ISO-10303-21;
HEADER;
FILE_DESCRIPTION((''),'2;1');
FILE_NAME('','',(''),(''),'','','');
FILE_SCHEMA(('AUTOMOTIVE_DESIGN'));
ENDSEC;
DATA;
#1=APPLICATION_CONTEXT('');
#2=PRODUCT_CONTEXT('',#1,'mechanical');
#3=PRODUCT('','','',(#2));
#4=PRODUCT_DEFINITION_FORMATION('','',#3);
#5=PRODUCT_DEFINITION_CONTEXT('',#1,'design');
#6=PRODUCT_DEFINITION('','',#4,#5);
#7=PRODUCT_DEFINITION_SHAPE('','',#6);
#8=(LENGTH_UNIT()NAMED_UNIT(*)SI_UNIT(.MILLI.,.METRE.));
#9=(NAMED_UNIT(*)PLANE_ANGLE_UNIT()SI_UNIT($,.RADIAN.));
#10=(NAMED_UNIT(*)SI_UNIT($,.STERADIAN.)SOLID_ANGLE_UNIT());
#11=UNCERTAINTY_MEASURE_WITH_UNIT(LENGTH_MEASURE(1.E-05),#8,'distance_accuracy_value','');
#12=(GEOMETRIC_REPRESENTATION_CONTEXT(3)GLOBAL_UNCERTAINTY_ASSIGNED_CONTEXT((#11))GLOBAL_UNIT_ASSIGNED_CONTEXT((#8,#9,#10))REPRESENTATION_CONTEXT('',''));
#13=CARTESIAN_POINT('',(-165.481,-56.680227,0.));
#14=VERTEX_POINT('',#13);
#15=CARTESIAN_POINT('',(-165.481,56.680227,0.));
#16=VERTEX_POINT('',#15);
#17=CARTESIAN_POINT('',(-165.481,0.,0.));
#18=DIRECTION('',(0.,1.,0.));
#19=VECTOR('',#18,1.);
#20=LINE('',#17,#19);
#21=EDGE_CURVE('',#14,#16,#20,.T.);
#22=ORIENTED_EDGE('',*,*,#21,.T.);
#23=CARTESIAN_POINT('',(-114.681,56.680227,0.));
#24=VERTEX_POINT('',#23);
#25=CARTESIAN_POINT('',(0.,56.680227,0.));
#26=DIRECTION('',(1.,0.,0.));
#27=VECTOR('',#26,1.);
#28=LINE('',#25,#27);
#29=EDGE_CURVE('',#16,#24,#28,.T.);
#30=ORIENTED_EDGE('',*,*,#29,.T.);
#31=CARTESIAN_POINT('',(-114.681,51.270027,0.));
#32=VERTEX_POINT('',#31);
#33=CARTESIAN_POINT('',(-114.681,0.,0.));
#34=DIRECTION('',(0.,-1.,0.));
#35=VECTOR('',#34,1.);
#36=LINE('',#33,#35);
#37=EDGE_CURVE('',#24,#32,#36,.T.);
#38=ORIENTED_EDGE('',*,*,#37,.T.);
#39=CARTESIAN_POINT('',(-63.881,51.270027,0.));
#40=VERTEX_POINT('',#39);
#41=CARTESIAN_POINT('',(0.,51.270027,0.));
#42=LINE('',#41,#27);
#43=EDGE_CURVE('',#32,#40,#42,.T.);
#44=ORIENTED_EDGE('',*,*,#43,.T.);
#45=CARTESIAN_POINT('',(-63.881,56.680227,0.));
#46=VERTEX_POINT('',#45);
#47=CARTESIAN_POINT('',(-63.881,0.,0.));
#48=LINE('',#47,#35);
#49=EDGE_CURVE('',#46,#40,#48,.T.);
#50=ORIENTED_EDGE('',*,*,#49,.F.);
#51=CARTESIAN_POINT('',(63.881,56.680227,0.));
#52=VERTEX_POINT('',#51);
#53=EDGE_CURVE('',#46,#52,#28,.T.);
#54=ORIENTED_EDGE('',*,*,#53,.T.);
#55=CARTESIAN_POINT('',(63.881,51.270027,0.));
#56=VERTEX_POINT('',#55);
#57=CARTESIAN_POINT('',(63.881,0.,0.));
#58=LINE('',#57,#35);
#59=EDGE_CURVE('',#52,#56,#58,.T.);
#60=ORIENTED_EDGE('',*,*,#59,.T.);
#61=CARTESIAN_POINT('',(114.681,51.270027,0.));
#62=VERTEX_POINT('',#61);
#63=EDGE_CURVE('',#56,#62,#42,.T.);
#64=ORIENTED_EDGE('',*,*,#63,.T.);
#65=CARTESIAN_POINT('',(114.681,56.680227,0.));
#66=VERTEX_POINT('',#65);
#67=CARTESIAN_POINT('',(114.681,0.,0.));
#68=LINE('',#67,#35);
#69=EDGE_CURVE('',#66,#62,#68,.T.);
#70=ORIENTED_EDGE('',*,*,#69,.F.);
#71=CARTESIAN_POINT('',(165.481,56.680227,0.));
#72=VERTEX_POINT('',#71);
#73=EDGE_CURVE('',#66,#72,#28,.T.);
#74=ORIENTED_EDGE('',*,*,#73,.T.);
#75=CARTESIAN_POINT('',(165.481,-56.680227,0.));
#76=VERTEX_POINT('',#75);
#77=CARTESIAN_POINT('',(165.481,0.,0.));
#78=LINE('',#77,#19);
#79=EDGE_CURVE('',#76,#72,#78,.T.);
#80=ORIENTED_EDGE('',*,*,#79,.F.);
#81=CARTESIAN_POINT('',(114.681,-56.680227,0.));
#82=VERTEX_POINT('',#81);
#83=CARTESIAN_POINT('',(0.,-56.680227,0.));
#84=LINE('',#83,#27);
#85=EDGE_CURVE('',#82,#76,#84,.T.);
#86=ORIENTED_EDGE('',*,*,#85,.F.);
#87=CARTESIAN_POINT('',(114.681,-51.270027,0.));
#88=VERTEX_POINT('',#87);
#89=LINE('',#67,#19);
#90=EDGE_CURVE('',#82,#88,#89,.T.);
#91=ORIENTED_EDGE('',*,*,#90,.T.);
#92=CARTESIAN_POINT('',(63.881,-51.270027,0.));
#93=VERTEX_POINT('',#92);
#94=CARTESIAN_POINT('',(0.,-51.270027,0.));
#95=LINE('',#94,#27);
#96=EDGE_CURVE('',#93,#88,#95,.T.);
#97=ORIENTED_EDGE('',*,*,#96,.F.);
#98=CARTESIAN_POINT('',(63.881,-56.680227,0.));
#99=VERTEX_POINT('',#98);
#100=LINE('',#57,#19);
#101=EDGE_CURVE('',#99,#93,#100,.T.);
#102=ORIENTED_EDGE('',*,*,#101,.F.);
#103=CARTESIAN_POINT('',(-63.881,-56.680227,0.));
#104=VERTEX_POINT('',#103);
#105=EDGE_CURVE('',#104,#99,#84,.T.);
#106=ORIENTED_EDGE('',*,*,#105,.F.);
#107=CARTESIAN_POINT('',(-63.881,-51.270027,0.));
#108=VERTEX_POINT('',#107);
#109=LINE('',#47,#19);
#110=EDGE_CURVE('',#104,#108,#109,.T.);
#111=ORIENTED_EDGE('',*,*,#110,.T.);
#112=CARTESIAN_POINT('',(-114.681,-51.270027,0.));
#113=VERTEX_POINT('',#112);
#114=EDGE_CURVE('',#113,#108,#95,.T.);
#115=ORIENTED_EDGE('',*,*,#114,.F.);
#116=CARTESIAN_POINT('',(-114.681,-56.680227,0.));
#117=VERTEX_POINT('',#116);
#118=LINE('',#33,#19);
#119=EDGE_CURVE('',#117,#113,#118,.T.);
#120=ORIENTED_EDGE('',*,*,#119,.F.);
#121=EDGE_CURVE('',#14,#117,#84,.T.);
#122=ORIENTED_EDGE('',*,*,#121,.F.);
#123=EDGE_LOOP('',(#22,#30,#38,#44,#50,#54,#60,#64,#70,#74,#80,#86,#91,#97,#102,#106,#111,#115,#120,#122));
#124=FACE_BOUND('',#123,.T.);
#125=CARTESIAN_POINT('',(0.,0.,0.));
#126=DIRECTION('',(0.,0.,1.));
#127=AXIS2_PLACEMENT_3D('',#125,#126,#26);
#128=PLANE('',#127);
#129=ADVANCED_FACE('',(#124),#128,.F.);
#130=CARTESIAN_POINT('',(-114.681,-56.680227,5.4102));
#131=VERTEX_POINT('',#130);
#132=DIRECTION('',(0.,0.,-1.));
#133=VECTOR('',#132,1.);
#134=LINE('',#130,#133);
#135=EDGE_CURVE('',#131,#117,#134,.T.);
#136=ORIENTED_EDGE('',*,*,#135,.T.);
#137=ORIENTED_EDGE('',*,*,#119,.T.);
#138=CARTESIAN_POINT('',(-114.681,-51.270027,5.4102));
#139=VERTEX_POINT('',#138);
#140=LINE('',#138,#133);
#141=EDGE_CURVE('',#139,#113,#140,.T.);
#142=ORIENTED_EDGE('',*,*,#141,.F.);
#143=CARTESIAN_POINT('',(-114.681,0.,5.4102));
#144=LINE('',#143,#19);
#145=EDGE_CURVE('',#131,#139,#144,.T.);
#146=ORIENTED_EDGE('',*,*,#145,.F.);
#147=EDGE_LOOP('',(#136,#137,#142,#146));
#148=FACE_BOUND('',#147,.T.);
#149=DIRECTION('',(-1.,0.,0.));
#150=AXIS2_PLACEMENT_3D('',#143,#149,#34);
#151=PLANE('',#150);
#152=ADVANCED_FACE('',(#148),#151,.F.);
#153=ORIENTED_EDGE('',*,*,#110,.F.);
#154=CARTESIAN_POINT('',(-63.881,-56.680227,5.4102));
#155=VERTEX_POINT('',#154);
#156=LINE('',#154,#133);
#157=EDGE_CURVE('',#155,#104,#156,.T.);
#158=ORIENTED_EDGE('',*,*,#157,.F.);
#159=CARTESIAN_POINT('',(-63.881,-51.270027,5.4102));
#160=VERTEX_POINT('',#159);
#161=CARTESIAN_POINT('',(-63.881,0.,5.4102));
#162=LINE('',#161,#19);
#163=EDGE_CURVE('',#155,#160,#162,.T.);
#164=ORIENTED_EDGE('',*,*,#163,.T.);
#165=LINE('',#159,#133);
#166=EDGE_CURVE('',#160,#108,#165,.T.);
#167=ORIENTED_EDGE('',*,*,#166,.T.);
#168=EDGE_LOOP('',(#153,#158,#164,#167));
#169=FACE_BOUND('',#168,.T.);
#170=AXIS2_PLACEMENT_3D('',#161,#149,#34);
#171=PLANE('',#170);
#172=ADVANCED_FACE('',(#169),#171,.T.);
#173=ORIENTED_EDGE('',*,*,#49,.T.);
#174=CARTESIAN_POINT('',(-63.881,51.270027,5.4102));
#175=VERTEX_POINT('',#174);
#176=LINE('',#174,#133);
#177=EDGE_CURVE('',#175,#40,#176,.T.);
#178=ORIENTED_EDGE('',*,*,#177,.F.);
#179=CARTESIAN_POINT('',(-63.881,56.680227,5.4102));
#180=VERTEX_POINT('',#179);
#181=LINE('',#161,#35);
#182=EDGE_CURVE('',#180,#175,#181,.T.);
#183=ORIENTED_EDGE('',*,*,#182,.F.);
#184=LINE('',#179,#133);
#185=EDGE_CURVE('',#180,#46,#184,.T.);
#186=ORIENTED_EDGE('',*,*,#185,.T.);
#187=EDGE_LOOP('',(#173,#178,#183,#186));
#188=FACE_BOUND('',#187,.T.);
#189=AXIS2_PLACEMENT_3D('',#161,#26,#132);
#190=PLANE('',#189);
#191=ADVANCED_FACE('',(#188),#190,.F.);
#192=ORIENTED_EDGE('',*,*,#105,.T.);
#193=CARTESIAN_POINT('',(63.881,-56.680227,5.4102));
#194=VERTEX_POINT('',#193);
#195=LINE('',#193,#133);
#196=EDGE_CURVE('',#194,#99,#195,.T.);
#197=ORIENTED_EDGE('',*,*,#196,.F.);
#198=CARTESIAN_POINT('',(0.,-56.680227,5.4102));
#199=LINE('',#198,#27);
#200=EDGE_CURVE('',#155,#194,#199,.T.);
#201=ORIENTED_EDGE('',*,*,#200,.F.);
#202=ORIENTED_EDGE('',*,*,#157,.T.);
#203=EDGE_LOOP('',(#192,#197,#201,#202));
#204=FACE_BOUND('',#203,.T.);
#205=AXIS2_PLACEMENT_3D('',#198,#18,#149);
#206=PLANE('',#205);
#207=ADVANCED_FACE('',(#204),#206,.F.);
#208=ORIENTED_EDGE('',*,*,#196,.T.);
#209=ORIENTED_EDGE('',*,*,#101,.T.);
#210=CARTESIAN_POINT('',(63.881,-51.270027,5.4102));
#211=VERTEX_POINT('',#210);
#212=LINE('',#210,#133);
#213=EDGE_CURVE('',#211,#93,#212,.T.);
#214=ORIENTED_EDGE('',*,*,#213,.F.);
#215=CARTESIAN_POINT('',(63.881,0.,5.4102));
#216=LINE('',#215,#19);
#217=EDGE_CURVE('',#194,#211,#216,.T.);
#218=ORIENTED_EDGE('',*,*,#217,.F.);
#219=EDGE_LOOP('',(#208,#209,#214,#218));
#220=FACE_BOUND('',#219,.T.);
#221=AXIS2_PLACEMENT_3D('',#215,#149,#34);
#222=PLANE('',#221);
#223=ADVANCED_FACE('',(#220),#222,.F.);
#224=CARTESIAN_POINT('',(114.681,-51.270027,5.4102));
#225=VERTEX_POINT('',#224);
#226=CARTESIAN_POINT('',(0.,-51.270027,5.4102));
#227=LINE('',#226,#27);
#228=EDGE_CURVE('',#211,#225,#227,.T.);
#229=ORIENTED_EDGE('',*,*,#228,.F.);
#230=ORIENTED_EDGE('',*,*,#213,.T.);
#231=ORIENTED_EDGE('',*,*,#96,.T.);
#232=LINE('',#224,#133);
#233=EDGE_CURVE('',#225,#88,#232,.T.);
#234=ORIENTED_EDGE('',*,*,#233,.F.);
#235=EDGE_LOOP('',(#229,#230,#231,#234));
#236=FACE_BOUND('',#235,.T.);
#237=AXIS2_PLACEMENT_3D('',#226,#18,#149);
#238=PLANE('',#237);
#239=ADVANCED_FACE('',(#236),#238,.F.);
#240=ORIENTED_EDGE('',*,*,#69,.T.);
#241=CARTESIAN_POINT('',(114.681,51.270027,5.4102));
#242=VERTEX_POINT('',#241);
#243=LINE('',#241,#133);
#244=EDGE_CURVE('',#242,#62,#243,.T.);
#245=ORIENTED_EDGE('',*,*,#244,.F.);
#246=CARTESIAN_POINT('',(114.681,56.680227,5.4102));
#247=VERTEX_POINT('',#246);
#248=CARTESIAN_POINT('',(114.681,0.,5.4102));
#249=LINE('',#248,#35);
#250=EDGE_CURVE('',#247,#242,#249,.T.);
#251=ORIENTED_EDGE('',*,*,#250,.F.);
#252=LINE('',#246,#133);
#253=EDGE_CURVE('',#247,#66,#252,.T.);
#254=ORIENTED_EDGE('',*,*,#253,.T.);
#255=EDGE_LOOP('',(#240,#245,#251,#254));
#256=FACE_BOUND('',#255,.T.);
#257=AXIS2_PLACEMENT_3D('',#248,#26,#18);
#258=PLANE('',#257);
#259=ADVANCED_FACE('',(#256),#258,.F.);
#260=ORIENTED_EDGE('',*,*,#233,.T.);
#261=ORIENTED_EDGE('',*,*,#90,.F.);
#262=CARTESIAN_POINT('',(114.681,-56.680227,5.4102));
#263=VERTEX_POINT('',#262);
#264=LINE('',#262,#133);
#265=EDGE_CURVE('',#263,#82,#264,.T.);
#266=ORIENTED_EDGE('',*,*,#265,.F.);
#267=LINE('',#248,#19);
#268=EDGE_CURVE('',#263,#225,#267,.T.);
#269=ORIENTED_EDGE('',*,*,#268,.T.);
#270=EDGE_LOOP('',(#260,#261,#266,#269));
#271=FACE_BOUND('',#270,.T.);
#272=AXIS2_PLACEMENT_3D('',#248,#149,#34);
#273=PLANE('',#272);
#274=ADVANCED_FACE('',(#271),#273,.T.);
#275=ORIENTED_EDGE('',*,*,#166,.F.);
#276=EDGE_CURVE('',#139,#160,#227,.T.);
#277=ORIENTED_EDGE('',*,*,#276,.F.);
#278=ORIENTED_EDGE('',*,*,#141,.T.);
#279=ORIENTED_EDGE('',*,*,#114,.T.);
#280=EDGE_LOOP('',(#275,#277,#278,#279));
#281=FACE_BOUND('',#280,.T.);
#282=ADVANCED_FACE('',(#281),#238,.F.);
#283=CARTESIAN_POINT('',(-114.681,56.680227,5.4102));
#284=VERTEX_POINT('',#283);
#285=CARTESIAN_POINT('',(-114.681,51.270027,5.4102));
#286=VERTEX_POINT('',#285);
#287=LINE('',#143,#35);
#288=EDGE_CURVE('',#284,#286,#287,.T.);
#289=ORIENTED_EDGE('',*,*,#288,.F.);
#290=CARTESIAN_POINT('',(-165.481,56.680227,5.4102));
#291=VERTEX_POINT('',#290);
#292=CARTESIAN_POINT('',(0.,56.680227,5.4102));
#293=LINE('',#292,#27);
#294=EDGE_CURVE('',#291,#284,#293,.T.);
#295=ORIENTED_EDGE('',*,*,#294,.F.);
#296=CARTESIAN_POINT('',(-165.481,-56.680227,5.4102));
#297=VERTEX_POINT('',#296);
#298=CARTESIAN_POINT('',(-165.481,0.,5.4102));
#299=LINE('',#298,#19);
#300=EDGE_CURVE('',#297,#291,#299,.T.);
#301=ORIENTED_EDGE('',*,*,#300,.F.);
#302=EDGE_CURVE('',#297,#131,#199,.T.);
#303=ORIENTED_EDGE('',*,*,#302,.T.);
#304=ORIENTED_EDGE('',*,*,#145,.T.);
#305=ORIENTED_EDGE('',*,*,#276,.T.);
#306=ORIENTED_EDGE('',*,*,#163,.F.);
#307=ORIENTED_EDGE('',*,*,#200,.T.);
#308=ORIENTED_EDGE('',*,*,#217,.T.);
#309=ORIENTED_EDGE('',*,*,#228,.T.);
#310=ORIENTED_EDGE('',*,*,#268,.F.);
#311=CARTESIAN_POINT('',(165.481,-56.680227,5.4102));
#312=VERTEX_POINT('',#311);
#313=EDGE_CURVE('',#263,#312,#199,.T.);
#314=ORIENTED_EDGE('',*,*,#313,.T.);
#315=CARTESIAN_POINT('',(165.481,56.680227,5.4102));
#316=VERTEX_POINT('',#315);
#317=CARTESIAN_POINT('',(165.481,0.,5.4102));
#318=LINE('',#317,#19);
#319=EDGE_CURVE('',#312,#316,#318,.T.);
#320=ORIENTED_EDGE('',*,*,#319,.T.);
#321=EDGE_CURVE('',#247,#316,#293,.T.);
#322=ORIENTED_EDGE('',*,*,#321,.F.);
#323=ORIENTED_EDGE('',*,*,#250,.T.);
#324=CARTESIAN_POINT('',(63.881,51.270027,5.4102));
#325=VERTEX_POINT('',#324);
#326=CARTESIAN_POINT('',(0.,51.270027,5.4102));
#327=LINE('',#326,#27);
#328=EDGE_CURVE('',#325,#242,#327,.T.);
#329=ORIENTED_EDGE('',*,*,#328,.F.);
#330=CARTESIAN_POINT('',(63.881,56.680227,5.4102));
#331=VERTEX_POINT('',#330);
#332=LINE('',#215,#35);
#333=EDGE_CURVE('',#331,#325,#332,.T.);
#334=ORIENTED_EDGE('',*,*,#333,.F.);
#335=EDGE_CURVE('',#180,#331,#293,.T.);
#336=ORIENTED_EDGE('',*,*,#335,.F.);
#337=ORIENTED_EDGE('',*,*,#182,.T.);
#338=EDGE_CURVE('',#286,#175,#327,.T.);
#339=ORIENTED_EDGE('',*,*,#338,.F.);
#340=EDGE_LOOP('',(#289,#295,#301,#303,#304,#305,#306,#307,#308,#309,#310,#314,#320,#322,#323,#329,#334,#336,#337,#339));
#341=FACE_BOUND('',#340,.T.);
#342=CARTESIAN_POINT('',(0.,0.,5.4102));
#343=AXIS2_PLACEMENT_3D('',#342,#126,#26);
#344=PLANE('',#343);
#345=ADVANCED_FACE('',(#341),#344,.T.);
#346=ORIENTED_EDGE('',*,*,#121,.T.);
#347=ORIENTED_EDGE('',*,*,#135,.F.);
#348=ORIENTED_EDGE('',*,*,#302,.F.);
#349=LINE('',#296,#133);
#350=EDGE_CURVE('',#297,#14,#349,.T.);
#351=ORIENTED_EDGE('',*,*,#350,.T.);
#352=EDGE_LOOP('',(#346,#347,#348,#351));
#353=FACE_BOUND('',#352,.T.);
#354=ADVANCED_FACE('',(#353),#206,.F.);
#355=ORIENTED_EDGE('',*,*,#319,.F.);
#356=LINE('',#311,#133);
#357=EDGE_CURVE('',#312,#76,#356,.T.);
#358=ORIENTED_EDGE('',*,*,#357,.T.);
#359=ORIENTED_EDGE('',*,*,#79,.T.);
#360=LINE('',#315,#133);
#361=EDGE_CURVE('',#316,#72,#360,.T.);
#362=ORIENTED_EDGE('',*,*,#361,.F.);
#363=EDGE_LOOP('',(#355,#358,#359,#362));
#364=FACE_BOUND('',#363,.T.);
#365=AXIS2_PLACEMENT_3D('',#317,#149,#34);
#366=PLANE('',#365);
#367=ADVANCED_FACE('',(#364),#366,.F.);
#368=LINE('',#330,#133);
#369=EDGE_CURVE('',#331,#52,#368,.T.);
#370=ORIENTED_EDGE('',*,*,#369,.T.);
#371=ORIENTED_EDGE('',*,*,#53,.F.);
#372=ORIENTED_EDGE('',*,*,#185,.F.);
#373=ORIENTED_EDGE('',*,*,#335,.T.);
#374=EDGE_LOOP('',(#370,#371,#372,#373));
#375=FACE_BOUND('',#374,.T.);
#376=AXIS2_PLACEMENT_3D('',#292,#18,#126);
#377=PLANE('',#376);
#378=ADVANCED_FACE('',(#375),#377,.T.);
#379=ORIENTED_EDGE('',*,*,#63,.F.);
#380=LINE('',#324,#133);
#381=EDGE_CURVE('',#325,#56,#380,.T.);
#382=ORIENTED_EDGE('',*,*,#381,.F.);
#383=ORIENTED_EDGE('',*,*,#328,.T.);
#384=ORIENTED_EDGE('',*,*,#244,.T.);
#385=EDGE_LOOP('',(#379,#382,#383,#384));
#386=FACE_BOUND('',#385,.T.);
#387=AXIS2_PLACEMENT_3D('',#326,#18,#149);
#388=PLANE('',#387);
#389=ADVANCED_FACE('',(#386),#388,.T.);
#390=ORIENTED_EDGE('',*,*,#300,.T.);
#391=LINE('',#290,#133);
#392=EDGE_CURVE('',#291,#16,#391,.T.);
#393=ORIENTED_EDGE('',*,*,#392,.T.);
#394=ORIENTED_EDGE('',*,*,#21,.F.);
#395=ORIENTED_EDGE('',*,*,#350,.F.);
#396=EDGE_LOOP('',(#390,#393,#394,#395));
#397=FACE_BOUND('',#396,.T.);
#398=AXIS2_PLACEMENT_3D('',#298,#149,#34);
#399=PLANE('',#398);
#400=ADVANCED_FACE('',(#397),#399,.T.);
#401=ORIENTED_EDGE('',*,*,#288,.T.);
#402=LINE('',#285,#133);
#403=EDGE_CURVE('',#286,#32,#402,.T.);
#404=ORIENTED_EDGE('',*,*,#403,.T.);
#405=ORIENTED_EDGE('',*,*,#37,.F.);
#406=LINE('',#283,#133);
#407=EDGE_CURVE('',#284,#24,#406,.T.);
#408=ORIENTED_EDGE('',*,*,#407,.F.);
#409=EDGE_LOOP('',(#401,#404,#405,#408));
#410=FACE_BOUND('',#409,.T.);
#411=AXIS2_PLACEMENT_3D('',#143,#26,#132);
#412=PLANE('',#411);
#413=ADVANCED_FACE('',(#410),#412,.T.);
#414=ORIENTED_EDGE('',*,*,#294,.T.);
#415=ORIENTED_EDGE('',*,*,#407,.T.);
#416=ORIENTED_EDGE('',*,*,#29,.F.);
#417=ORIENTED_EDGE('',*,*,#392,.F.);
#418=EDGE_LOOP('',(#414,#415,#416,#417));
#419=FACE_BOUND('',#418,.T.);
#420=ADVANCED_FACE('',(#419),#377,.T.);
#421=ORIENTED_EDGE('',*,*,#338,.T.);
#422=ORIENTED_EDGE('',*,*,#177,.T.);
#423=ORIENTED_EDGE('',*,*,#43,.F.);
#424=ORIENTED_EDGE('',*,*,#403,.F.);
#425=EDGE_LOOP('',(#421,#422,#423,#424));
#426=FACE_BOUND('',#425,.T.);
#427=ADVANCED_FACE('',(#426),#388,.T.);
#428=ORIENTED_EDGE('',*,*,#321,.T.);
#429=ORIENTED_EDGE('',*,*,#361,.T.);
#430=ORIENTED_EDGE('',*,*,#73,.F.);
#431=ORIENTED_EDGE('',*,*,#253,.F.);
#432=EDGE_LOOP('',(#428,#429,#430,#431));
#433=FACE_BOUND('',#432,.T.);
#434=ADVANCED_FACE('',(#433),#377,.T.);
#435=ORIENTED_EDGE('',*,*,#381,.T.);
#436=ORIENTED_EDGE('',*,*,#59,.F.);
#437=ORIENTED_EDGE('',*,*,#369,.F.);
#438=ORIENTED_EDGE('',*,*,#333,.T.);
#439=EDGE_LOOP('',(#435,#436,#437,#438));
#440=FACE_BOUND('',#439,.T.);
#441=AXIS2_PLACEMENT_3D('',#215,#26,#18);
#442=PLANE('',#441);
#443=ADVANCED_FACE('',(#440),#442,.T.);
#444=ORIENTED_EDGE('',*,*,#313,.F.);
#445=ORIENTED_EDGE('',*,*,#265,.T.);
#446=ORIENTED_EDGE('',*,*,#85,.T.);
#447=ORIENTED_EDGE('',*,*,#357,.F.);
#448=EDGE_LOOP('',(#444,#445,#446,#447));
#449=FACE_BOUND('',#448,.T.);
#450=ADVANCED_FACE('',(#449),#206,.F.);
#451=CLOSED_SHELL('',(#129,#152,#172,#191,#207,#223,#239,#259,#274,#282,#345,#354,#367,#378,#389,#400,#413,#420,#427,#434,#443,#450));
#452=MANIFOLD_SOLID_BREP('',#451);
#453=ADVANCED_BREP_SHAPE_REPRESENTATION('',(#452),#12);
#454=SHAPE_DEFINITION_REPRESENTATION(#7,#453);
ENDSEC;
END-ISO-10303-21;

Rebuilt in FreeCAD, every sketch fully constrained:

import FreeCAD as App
import Part
import Sketcher

V = App.Vector
Q = App.Units.Quantity

doc = App.newDocument("Part")
body = doc.addObject("PartDesign::Body", "Body")

sketch1 = body.newObject("Sketcher::SketchObject", "Sketch")
sketch1.AttachmentSupport = (doc.getObject("XY_Plane"), [""])
sketch1.MapMode = "FlatFace"
sketch1.addGeometry(Part.LineSegment(V(-165, 57, 0), V(-165, -57, 0)), False)
sketch1.addGeometry(Part.LineSegment(V(-165, -57, 0), V(-115, -57, 0)), False)
sketch1.addGeometry(Part.LineSegment(V(-115, -57, 0), V(-115, -51, 0)), False)
sketch1.addGeometry(Part.LineSegment(V(-115, -51, 0), V(-64, -51, 0)), False)
sketch1.addGeometry(Part.LineSegment(V(-64, -51, 0), V(-64, -57, 0)), False)
sketch1.addGeometry(Part.LineSegment(V(-64, -57, 0), V(64, -57, 0)), False)
sketch1.addGeometry(Part.LineSegment(V(64, -57, 0), V(64, -51, 0)), False)
sketch1.addGeometry(Part.LineSegment(V(64, -51, 0), V(115, -51, 0)), False)
sketch1.addGeometry(Part.LineSegment(V(115, -51, 0), V(115, -57, 0)), False)
sketch1.addGeometry(Part.LineSegment(V(115, -57, 0), V(165, -57, 0)), False)
sketch1.addGeometry(Part.LineSegment(V(165, -57, 0), V(165, 57, 0)), False)
sketch1.addGeometry(Part.LineSegment(V(165, 57, 0), V(115, 57, 0)), False)
sketch1.addGeometry(Part.LineSegment(V(115, 57, 0), V(115, 51, 0)), False)
sketch1.addGeometry(Part.LineSegment(V(115, 51, 0), V(64, 51, 0)), False)
sketch1.addGeometry(Part.LineSegment(V(64, 51, 0), V(64, 57, 0)), False)
sketch1.addGeometry(Part.LineSegment(V(64, 57, 0), V(-64, 57, 0)), False)
sketch1.addGeometry(Part.LineSegment(V(-64, 57, 0), V(-64, 51, 0)), False)
sketch1.addGeometry(Part.LineSegment(V(-64, 51, 0), V(-115, 51, 0)), False)
sketch1.addGeometry(Part.LineSegment(V(-115, 51, 0), V(-115, 57, 0)), False)
sketch1.addGeometry(Part.LineSegment(V(-115, 57, 0), V(-165, 57, 0)), False)
sketch1.addConstraint(Sketcher.Constraint("Coincident", 0, 2, 1, 1))
sketch1.addConstraint(Sketcher.Constraint("Coincident", 1, 2, 2, 1))
sketch1.addConstraint(Sketcher.Constraint("Coincident", 2, 2, 3, 1))
sketch1.addConstraint(Sketcher.Constraint("Coincident", 3, 2, 4, 1))
sketch1.addConstraint(Sketcher.Constraint("Coincident", 4, 2, 5, 1))
sketch1.addConstraint(Sketcher.Constraint("Coincident", 5, 2, 6, 1))
sketch1.addConstraint(Sketcher.Constraint("Coincident", 6, 2, 7, 1))
sketch1.addConstraint(Sketcher.Constraint("Coincident", 7, 2, 8, 1))
sketch1.addConstraint(Sketcher.Constraint("Coincident", 8, 2, 9, 1))
sketch1.addConstraint(Sketcher.Constraint("Coincident", 9, 2, 10, 1))
sketch1.addConstraint(Sketcher.Constraint("Coincident", 10, 2, 11, 1))
sketch1.addConstraint(Sketcher.Constraint("Coincident", 11, 2, 12, 1))
sketch1.addConstraint(Sketcher.Constraint("Coincident", 12, 2, 13, 1))
sketch1.addConstraint(Sketcher.Constraint("Coincident", 13, 2, 14, 1))
sketch1.addConstraint(Sketcher.Constraint("Coincident", 14, 2, 15, 1))
sketch1.addConstraint(Sketcher.Constraint("Coincident", 15, 2, 16, 1))
sketch1.addConstraint(Sketcher.Constraint("Coincident", 16, 2, 17, 1))
sketch1.addConstraint(Sketcher.Constraint("Coincident", 17, 2, 18, 1))
sketch1.addConstraint(Sketcher.Constraint("Coincident", 18, 2, 19, 1))
sketch1.addConstraint(Sketcher.Constraint("Coincident", 19, 2, 0, 1))
sketch1.addConstraint(Sketcher.Constraint("Vertical", 0))
sketch1.addConstraint(Sketcher.Constraint("Horizontal", 1))
sketch1.addConstraint(Sketcher.Constraint("Vertical", 2))
sketch1.addConstraint(Sketcher.Constraint("Horizontal", 3))
sketch1.addConstraint(Sketcher.Constraint("Vertical", 4))
sketch1.addConstraint(Sketcher.Constraint("Horizontal", 5))
sketch1.addConstraint(Sketcher.Constraint("Vertical", 6))
sketch1.addConstraint(Sketcher.Constraint("Horizontal", 7))
sketch1.addConstraint(Sketcher.Constraint("Vertical", 8))
sketch1.addConstraint(Sketcher.Constraint("Horizontal", 9))
sketch1.addConstraint(Sketcher.Constraint("Vertical", 10))
sketch1.addConstraint(Sketcher.Constraint("Horizontal", 11))
sketch1.addConstraint(Sketcher.Constraint("Vertical", 12))
sketch1.addConstraint(Sketcher.Constraint("Horizontal", 13))
sketch1.addConstraint(Sketcher.Constraint("Vertical", 14))
sketch1.addConstraint(Sketcher.Constraint("Horizontal", 15))
sketch1.addConstraint(Sketcher.Constraint("Vertical", 16))
sketch1.addConstraint(Sketcher.Constraint("Horizontal", 17))
sketch1.addConstraint(Sketcher.Constraint("Vertical", 18))
sketch1.addConstraint(Sketcher.Constraint("Horizontal", 19))
sketch1.addConstraint(Sketcher.Constraint("Symmetric", 0, 2, 10, 2, -1, 1))
sketch1.addConstraint(Sketcher.Constraint("Symmetric", 2, 2, 12, 2, -1, 1))
sketch1.addConstraint(Sketcher.Constraint("Symmetric", 4, 2, 14, 2, -1, 1))
sketch1.addConstraint(Sketcher.Constraint("Symmetric", 6, 2, 16, 2, -1, 1))
sketch1.addConstraint(Sketcher.Constraint("Symmetric", 8, 2, 18, 2, -1, 1))
sketch1.addConstraint(Sketcher.Constraint("Symmetric", 3, 2, 6, 2, -2))
sketch1.addConstraint(Sketcher.Constraint("Symmetric", 1, 2, 8, 2, -2))
sketch1.addConstraint(Sketcher.Constraint("Horizontal", 1, 2, 4, 2))
sketch1.addConstraint(Sketcher.Constraint("Equal", 1, 3))
sketch1.addConstraint(Sketcher.Constraint("DistanceX", 1, 1, 1, 2, Q("2 in")))
sketch1.addConstraint(Sketcher.Constraint("DistanceX", 5, 1, 5, 2, Q("5.03 in")))
sketch1.addConstraint(Sketcher.Constraint("DistanceY", 2, 1, 2, 2, Q("0.213 in")))
sketch1.addConstraint(Sketcher.Constraint("DistanceY", 0, 2, 0, 1, Q("113.360454 mm")))
pad1 = body.newObject("PartDesign::Pad", "Pad")
pad1.Profile = sketch1
pad1.Length = Q("0.213 in")

doc.recompute()
